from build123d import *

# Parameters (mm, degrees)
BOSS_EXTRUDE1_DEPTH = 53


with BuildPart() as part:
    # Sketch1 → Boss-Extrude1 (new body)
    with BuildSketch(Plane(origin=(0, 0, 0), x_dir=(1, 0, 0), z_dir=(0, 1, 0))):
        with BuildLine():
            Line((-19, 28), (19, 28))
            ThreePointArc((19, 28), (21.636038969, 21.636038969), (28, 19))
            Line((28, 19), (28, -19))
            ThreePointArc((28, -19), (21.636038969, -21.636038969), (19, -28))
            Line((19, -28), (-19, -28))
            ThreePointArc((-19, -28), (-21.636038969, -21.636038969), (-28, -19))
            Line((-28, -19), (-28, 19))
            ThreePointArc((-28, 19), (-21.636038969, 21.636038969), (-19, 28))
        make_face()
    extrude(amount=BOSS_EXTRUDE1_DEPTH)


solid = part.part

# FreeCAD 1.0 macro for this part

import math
import FreeCAD as App
import Part
import Sketcher
from FreeCAD import Vector
Q = App.Units.Quantity

doc = App.newDocument("Part")
body = doc.addObject("PartDesign::Body", "Body")

# Sketch on XZ plane
sketch1 = body.newObject("Sketcher::SketchObject", "Sketch")
sketch1.AttachmentSupport = (doc.getObject("XZ_Plane"), [""])
sketch1.MapMode = "FlatFace"
sketch1.addGeometry([
    Part.LineSegment(Vector(19, -28, 0), Vector(-19, -28, 0)),  # 0
    Part.ArcOfCircle(Part.Circle(Vector(-28, -28, 0), Vector(0, 0, 1), 9), math.radians(0), math.radians(90)),  # 1
    Part.LineSegment(Vector(-28, -19, 0), Vector(-28, 19, 0)),  # 2
    Part.ArcOfCircle(Part.Circle(Vector(-28, 28, 0), Vector(0, 0, 1), 9), math.radians(-90), math.radians(0)),  # 3
    Part.LineSegment(Vector(-19, 28, 0), Vector(19, 28, 0)),  # 4
    Part.ArcOfCircle(Part.Circle(Vector(28, 28, 0), Vector(0, 0, 1), 9), math.radians(180), math.radians(270)),  # 5
    Part.LineSegment(Vector(28, 19, 0), Vector(28, -19, 0)),  # 6
    Part.ArcOfCircle(Part.Circle(Vector(28, -28, 0), Vector(0, 0, 1), 9), math.radians(90), math.radians(180)),  # 7
], False)
sketch1.addConstraint([
    Sketcher.Constraint("Coincident", 0, 2, 1, 1),
    Sketcher.Constraint("Coincident", 1, 2, 2, 1),
    Sketcher.Constraint("Coincident", 2, 2, 3, 1),
    Sketcher.Constraint("Coincident", 3, 2, 4, 1),
    Sketcher.Constraint("Coincident", 4, 2, 5, 1),
    Sketcher.Constraint("Coincident", 5, 2, 6, 1),
    Sketcher.Constraint("Coincident", 6, 2, 7, 1),
    Sketcher.Constraint("Coincident", 7, 2, 0, 1),
    Sketcher.Constraint("Horizontal", 0),
    Sketcher.Constraint("Vertical", 2),
    Sketcher.Constraint("Horizontal", 4),
    Sketcher.Constraint("Vertical", 6),
    Sketcher.Constraint("Equal", 1, 3),
    Sketcher.Constraint("Equal", 3, 5),
    Sketcher.Constraint("Equal", 5, 7),
    Sketcher.Constraint("Symmetric", 1, 3, 5, 3, -1, 1),
    Sketcher.Constraint("Symmetric", 3, 3, 7, 3, -1, 1),
    Sketcher.Constraint("Symmetric", 3, 3, 5, 3, -2),
    Sketcher.Constraint("Horizontal", 7, 3, 0, 2),
    Sketcher.Constraint("Horizontal", 5, 3, 3, 2),
    Sketcher.Constraint("Vertical", 3, 3, 1, 2),
    Sketcher.Constraint("Vertical", 7, 3, 5, 2),
    Sketcher.Constraint("Equal", 4, 2),
    Sketcher.Constraint("Radius", 1, Q("9 mm")),
    Sketcher.Constraint("DistanceX", 0, 2, 0, 1, Q("38 mm")),
])
pad1 = body.newObject("PartDesign::Pad", "Pad")
pad1.Profile = sketch1
pad1.Length = 53
pad1.Reversed = True

doc.recompute()
